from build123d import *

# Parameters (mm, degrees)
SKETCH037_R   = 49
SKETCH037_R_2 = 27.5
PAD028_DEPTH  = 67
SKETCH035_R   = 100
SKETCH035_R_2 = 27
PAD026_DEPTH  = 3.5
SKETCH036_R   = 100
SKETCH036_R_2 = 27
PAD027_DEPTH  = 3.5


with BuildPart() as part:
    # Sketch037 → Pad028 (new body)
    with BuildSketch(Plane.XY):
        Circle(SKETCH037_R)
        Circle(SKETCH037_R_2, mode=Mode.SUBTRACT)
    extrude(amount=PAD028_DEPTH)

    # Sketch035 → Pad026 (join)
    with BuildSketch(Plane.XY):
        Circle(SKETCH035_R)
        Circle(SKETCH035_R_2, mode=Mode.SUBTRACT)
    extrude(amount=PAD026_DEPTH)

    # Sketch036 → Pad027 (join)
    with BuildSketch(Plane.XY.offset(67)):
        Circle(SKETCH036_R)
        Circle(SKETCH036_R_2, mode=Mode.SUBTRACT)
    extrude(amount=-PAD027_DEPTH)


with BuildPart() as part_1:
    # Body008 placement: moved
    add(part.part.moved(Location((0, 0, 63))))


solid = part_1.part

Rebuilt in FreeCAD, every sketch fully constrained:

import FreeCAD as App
import Part
import Sketcher

V = App.Vector
Q = App.Units.Quantity

doc = App.newDocument("Part")
body = doc.addObject("PartDesign::Body", "Body")

sketch1 = doc.addObject("Sketcher::SketchObject", "Sketch")
body.addObject(sketch1)
sketch1.AttachmentSupport = (doc.XY_Plane, [""])
sketch1.MapMode = "FlatFace"
sketch1.addGeometry(Part.Circle(V(0, 0, 0), V(0, 0, 1), 49), False)
sketch1.addGeometry(Part.Circle(V(0, 0, 0), V(0, 0, 1), 28), False)
sketch1.addConstraint(Sketcher.Constraint("Coincident", 0, 3, -1, 1))
sketch1.addConstraint(Sketcher.Constraint("Coincident", 1, 3, -1, 1))
sketch1.addConstraint(Sketcher.Constraint("Diameter", 0, Q("98 mm")))
sketch1.addConstraint(Sketcher.Constraint("Diameter", 1, Q("55 mm")))
pad1 = doc.addObject("PartDesign::Pad", "Pad")
body.addObject(pad1)
pad1.Profile = sketch1
pad1.Length = 67

sketch2 = doc.addObject("Sketcher::SketchObject", "Sketch001")
body.addObject(sketch2)
sketch2.AttachmentSupport = (doc.XY_Plane, [""])
sketch2.MapMode = "FlatFace"
sketch2.addGeometry(Part.Circle(V(0, 0, 0), V(0, 0, 1), 100), False)
sketch2.addGeometry(Part.Circle(V(0, 0, 0), V(0, 0, 1), 27), False)
sketch2.addConstraint(Sketcher.Constraint("Coincident", 0, 3, -1, 1))
sketch2.addConstraint(Sketcher.Constraint("Coincident", 1, 3, -1, 1))
sketch2.addConstraint(Sketcher.Constraint("Diameter", 0, Q("200 mm")))
sketch2.addConstraint(Sketcher.Constraint("Diameter", 1, Q("54 mm")))
pad2 = doc.addObject("PartDesign::Pad", "Pad001")
body.addObject(pad2)
pad2.Profile = sketch2
pad2.Length = 3.5

sketch3 = doc.addObject("Sketcher::SketchObject", "Sketch002")
body.addObject(sketch3)
sketch3.AttachmentSupport = (doc.XY_Plane, [""])
sketch3.MapMode = "FlatFace"
sketch3.AttachmentOffset = App.Placement(V(0, 0, 67), App.Rotation())
sketch3.addGeometry(Part.Circle(V(0, 0, 0), V(0, 0, 1), 100), False)
sketch3.addGeometry(Part.Circle(V(0, 0, 0), V(0, 0, 1), 27), False)
sketch3.addConstraint(Sketcher.Constraint("Coincident", 0, 3, -1, 1))
sketch3.addConstraint(Sketcher.Constraint("Coincident", 1, 3, -1, 1))
sketch3.addConstraint(Sketcher.Constraint("Diameter", 0, Q("200 mm")))
sketch3.addConstraint(Sketcher.Constraint("Diameter", 1, Q("54 mm")))
pad3 = doc.addObject("PartDesign::Pad", "Pad002")
body.addObject(pad3)
pad3.Profile = sketch3
pad3.Length = 3.5
pad3.Reversed = True
body2 = doc.addObject("PartDesign::Body", "Body001")
doc.recompute()

body.Placement = App.Placement(V(0, 0, 63), App.Rotation(V(0, 0, 1), 0))
boolean = doc.addObject("PartDesign::Boolean", "Boolean")
body2.addObject(boolean)
boolean.Type = "Fuse"
boolean.addObjects([body])

doc.recompute()
